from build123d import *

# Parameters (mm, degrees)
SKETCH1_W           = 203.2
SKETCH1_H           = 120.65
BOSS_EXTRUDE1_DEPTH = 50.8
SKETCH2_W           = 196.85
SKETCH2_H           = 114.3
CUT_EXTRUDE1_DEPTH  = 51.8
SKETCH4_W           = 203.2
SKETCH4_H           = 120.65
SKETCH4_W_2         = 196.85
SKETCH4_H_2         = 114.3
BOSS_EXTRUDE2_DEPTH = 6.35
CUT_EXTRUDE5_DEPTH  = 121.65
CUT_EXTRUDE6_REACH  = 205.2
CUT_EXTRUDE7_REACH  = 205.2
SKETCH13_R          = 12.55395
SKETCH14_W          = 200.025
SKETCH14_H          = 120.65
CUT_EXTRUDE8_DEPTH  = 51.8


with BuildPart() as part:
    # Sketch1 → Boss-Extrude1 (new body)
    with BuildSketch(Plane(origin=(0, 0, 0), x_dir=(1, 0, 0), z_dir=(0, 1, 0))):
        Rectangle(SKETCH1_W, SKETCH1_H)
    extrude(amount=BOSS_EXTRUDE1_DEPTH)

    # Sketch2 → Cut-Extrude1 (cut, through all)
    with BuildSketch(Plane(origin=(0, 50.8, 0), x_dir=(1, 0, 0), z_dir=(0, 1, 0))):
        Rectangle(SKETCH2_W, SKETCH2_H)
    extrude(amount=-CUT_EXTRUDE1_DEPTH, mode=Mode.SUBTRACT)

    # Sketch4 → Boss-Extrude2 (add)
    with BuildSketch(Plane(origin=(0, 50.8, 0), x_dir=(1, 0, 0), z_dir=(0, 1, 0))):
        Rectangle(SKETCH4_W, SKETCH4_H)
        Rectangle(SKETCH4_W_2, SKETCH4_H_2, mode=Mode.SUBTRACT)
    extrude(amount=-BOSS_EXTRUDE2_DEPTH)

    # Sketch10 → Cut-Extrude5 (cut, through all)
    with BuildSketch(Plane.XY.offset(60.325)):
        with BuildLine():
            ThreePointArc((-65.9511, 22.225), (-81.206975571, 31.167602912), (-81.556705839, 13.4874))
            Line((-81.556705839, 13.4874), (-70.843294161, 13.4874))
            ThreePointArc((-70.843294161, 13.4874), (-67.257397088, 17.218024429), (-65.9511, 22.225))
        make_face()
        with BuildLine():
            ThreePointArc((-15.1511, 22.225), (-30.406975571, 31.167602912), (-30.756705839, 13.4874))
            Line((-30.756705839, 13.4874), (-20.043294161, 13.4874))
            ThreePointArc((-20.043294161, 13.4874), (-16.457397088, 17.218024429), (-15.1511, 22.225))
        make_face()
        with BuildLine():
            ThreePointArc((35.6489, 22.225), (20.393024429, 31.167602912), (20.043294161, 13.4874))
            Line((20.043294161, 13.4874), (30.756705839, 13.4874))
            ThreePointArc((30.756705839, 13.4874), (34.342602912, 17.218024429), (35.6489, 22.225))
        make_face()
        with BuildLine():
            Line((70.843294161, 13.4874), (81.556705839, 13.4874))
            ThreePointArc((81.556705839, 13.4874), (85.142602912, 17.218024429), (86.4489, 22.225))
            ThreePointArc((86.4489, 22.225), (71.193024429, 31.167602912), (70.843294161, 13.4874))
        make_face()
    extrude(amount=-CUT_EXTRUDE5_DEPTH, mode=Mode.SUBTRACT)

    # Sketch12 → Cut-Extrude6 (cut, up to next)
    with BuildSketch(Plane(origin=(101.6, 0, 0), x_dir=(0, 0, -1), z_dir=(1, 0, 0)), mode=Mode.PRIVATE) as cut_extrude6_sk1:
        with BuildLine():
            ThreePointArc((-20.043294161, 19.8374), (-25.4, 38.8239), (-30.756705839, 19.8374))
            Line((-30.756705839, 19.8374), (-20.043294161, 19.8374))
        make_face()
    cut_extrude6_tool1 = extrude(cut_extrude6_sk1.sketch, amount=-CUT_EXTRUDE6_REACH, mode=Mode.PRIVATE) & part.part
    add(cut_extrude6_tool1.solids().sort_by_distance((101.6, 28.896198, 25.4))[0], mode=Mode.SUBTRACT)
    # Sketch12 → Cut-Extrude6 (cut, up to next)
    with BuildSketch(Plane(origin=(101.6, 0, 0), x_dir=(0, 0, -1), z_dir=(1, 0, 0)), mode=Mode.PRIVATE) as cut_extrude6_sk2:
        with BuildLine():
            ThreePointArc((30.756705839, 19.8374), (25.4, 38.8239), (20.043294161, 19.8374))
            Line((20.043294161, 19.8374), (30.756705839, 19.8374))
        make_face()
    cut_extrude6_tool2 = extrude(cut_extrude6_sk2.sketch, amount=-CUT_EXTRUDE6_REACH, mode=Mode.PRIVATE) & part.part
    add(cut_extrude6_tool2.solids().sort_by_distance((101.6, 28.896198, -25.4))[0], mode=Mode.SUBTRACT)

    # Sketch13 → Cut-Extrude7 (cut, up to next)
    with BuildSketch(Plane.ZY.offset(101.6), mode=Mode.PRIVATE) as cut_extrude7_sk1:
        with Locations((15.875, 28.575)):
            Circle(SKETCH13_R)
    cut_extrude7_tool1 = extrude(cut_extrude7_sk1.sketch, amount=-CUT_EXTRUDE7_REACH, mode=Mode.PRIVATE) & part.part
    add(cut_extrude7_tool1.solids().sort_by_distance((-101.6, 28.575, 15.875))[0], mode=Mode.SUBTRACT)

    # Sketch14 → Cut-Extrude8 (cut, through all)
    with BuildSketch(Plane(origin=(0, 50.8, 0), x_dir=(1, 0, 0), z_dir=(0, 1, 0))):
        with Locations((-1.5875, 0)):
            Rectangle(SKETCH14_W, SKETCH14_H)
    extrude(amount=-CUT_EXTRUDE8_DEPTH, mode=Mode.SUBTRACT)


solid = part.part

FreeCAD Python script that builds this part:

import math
import FreeCAD as App
import Part
import Sketcher
from FreeCAD import Vector
Q = App.Units.Quantity


def add_polygon(sketch, points):
    """Adds a closed chain of lines whose ends are joined by coincident constraints."""
    first, n = sketch.GeometryCount, len(points)
    for a, b in zip(points, points[1:] + points[:1]):
        sketch.addGeometry(Part.LineSegment(App.Vector(*a, 0), App.Vector(*b, 0)), False)
    for i in range(n):
        sketch.addConstraint(Sketcher.Constraint("Coincident", first + i, 2, first + (i + 1) % n, 1))

doc = App.newDocument("Part")
body = doc.addObject("PartDesign::Body", "Body")

sketch1 = body.newObject("Sketcher::SketchObject", "Sketch")
sketch1.AttachmentSupport = (doc.getObject("XZ_Plane"), [""])
sketch1.MapMode = "FlatFace"
add_polygon(sketch1, [(-101.6, -60.325), (-101.6, 60.325), (101.6, 60.325), (101.6, -60.325)])
sketch1.addConstraint([
    Sketcher.Constraint("Vertical", 0),
    Sketcher.Constraint("Horizontal", 1),
    Sketcher.Constraint("Vertical", 2),
    Sketcher.Constraint("Horizontal", 3),
    Sketcher.Constraint("Symmetric", 0, 2, 2, 2, -1, 1),
    Sketcher.Constraint("DistanceX", 1, 1, 1, 2, Q("8 in")),
    Sketcher.Constraint("DistanceY", 0, 1, 0, 2, Q("4.75 in")),
])
pad1 = body.newObject("PartDesign::Pad", "Pad")
pad1.Profile = sketch1
pad1.Length = Q("2 in")
pad1.Reversed = True

sketch2 = body.newObject("Sketcher::SketchObject", "Sketch001")
sketch2.AttachmentSupport = (doc.getObject("XZ_Plane"), [""])
sketch2.MapMode = "FlatFace"
sketch2.AttachmentOffset = App.Placement(Vector(0, 0, -2 * 25.4), App.Rotation())
add_polygon(sketch2, [(-98.425, -57.15), (-98.425, 57.15), (98.425, 57.15), (98.425, -57.15)])
sketch2.addConstraint([
    Sketcher.Constraint("Vertical", 0),
    Sketcher.Constraint("Horizontal", 1),
    Sketcher.Constraint("Vertical", 2),
    Sketcher.Constraint("Horizontal", 3),
    Sketcher.Constraint("Symmetric", 0, 2, 2, 2, -1, 1),
    Sketcher.Constraint("DistanceY", 0, 1, 0, 2, Q("4.5 in")),
    Sketcher.Constraint("DistanceX", 1, 1, 1, 2, Q("7.75 in")),
])
pocket1 = body.newObject("PartDesign::Pocket", "Pocket")
pocket1.Profile = sketch2
pocket1.Type = "ThroughAll"
pocket1.Reversed = True

sketch3 = body.newObject("Sketcher::SketchObject", "Sketch002")
sketch3.AttachmentSupport = (doc.getObject("XZ_Plane"), [""])
sketch3.MapMode = "FlatFace"
sketch3.AttachmentOffset = App.Placement(Vector(0, 0, -2 * 25.4), App.Rotation())
add_polygon(sketch3, [(-101.6, -60.325), (-101.6, 60.325), (101.6, 60.325), (101.6, -60.325)])
add_polygon(sketch3, [(98.425, 57.15), (-98.425, 57.15), (-98.425, -57.15), (98.425, -57.15)])
sketch3.addConstraint([
    Sketcher.Constraint("Vertical", 0),
    Sketcher.Constraint("Horizontal", 1),
    Sketcher.Constraint("Vertical", 2),
    Sketcher.Constraint("Horizontal", 3),
    Sketcher.Constraint("Horizontal", 4),
    Sketcher.Constraint("Vertical", 5),
    Sketcher.Constraint("Horizontal", 6),
    Sketcher.Constraint("Vertical", 7),
    Sketcher.Constraint("Symmetric", 0, 2, 2, 2, -1, 1),
    Sketcher.Constraint("Symmetric", 4, 2, 6, 2, -1, 1),
    Sketcher.Constraint("DistanceX", 1, 1, 1, 2, Q("8 in")),
    Sketcher.Constraint("DistanceY", 5, 2, 5, 1, Q("4.5 in")),
    Sketcher.Constraint("DistanceX", 4, 2, 4, 1, Q("7.75 in")),
    Sketcher.Constraint("DistanceY", 0, 1, 0, 2, Q("4.75 in")),
])
pad2 = body.newObject("PartDesign::Pad", "Pad001")
pad2.Profile = sketch3
pad2.Length = Q("0.25 in")

sketch4 = body.newObject("Sketcher::SketchObject", "Sketch003")
sketch4.AttachmentSupport = (doc.getObject("XY_Plane"), [""])
sketch4.MapMode = "FlatFace"
sketch4.AttachmentOffset = App.Placement(Vector(0, 0, 2.375 * 25.4), App.Rotation())
sketch4.addGeometry([
    Part.ArcOfCircle(Part.Circle(Vector(-76.2, 22.225, 0), Vector(0, 0, 1), 10.2489), math.radians(0), math.radians(238.489048)),
    Part.LineSegment(Vector(-81.556706, 13.4874, 0), Vector(-70.843294, 13.4874, 0)),
    Part.ArcOfCircle(Part.Circle(Vector(-76.2, 22.225, 0), Vector(0, 0, 1), 10.2489), math.radians(-58.489048), math.radians(0)),
    Part.ArcOfCircle(Part.Circle(Vector(-25.4, 22.225, 0), Vector(0, 0, 1), 10.2489), math.radians(0), math.radians(238.489048)),
    Part.LineSegment(Vector(-30.756706, 13.4874, 0), Vector(-20.043294, 13.4874, 0)),
    Part.ArcOfCircle(Part.Circle(Vector(-25.4, 22.225, 0), Vector(0, 0, 1), 10.2489), math.radians(-58.489048), math.radians(0)),
    Part.ArcOfCircle(Part.Circle(Vector(25.4, 22.225, 0), Vector(0, 0, 1), 10.2489), math.radians(0), math.radians(238.489048)),
    Part.LineSegment(Vector(20.043294, 13.4874, 0), Vector(30.756706, 13.4874, 0)),
    Part.ArcOfCircle(Part.Circle(Vector(25.4, 22.225, 0), Vector(0, 0, 1), 10.2489), math.radians(-58.489048), math.radians(0)),
    Part.LineSegment(Vector(70.843294, 13.4874, 0), Vector(81.556706, 13.4874, 0)),
    Part.ArcOfCircle(Part.Circle(Vector(76.2, 22.225, 0), Vector(0, 0, 1), 10.2489), math.radians(-58.489048), math.radians(0)),
    Part.ArcOfCircle(Part.Circle(Vector(76.2, 22.225, 0), Vector(0, 0, 1), 10.2489), math.radians(0), math.radians(238.489048)),
], False)
sketch4.addConstraint([
    Sketcher.Constraint("Coincident", 0, 2, 1, 1),
    Sketcher.Constraint("Coincident", 1, 2, 2, 1),
    Sketcher.Constraint("Tangent", 2, 2, 0, 1),
    Sketcher.Constraint("Coincident", 3, 2, 4, 1),
    Sketcher.Constraint("Coincident", 4, 2, 5, 1),
    Sketcher.Constraint("Tangent", 5, 2, 3, 1),
    Sketcher.Constraint("Coincident", 6, 2, 7, 1),
    Sketcher.Constraint("Coincident", 7, 2, 8, 1),
    Sketcher.Constraint("Tangent", 8, 2, 6, 1),
    Sketcher.Constraint("Coincident", 9, 2, 10, 1),
    Sketcher.Constraint("Tangent", 10, 2, 11, 1),
    Sketcher.Constraint("Coincident", 11, 2, 9, 1),
    Sketcher.Constraint("Horizontal", 1),
    Sketcher.Constraint("Horizontal", 4),
    Sketcher.Constraint("Horizontal", 7),
    Sketcher.Constraint("Horizontal", 9),
    Sketcher.Constraint("Equal", 0, 2),
    Sketcher.Constraint("Equal", 2, 3),
    Sketcher.Constraint("Equal", 3, 5),
    Sketcher.Constraint("Equal", 5, 6),
    Sketcher.Constraint("Equal", 6, 8),
    Sketcher.Constraint("Equal", 8, 10),
    Sketcher.Constraint("Equal", 10, 11),
    Sketcher.Constraint("Symmetric", 3, 3, 6, 3, -2),
    Sketcher.Constraint("Symmetric", 0, 3, 10, 3, -2),
    Sketcher.Constraint("Horizontal", 2, 3, 3, 3),
    Sketcher.Constraint("Horizontal", 11, 3, 2, 2),
    Sketcher.Constraint("Horizontal", 1, 2, 3, 2),
    Sketcher.Constraint("Horizontal", 2, 2, 5, 2),
    Sketcher.Constraint("Horizontal", 4, 2, 6, 2),
    Sketcher.Constraint("Horizontal", 5, 2, 8, 2),
    Sketcher.Constraint("Horizontal", 7, 2, 9, 2),
    Sketcher.Constraint("Horizontal", 8, 2, 10, 2),
    Sketcher.Constraint("DistanceX", 0, 3, -1, 1, Q("3 in")),
    Sketcher.Constraint("DistanceX", 3, 3, -1, 1, Q("1 in")),
    Sketcher.Constraint("Radius", 0, Q("0.4035 in")),
    Sketcher.Constraint("DistanceY", -1, 1, 0, 3, Q("0.875 in")),
    Sketcher.Constraint("DistanceY", -1, 1, 0, 2, Q("0.531 in")),
])
pocket2 = body.newObject("PartDesign::Pocket", "Pocket001")
pocket2.Profile = sketch4
pocket2.Type = "ThroughAll"

sketch5 = body.newObject("Sketcher::SketchObject", "Sketch004")
sketch5.AttachmentSupport = (doc.getObject("YZ_Plane"), [""])
sketch5.MapMode = "FlatFace"
sketch5.AttachmentOffset = App.Placement(Vector(0, 0, 4 * 25.4), App.Rotation())
sketch5.addGeometry([
    Part.ArcOfCircle(Part.Circle(Vector(28.575, 25.4, 0), Vector(0, 0, 1), 10.2489), math.radians(-148.489048), math.radians(148.489048)),
    Part.LineSegment(Vector(19.8374, 30.756706, 0), Vector(19.8374, 20.043294, 0)),
], False)
sketch5.addConstraint([
    Sketcher.Constraint("Coincident", 0, 1, 1, 2),
    Sketcher.Constraint("Coincident", 1, 1, 0, 2),
    Sketcher.Constraint("Vertical", 1),
    Sketcher.Constraint("DistanceY", -1, 1, 0, 3, Q("1 in")),
    Sketcher.Constraint("Radius", 0, Q("0.4035 in")),
    Sketcher.Constraint("DistanceX", -1, 1, 0, 3, Q("1.125 in")),
    Sketcher.Constraint("DistanceX", -1, 1, 0, 1, Q("0.781 in")),
])
pocket3 = body.newObject("PartDesign::Pocket", "Pocket002")
pocket3.Profile = sketch5
pocket3.Type = "UpToFirst"

sketch6 = body.newObject("Sketcher::SketchObject", "Sketch005")
sketch6.AttachmentSupport = (doc.getObject("YZ_Plane"), [""])
sketch6.MapMode = "FlatFace"
sketch6.AttachmentOffset = App.Placement(Vector(0, 0, 4 * 25.4), App.Rotation())
sketch6.addGeometry([
    Part.ArcOfCircle(Part.Circle(Vector(28.575, -25.4, 0), Vector(0, 0, 1), 10.2489), math.radians(-148.489048), math.radians(148.489048)),
    Part.LineSegment(Vector(19.8374, -20.043294, 0), Vector(19.8374, -30.756706, 0)),
], False)
sketch6.addConstraint([
    Sketcher.Constraint("Coincident", 0, 1, 1, 2),
    Sketcher.Constraint("Coincident", 1, 1, 0, 2),
    Sketcher.Constraint("Vertical", 1),
    Sketcher.Constraint("DistanceY", 0, 3, -1, 1, Q("1 in")),
    Sketcher.Constraint("Radius", 0, Q("0.4035 in")),
    Sketcher.Constraint("DistanceX", -1, 1, 0, 3, Q("1.125 in")),
    Sketcher.Constraint("DistanceX", -1, 1, 0, 1, Q("0.781 in")),
])
pocket4 = body.newObject("PartDesign::Pocket", "Pocket003")
pocket4.Profile = sketch6
pocket4.Type = "UpToFirst"

sketch7 = body.newObject("Sketcher::SketchObject", "Sketch006")
sketch7.AttachmentSupport = (doc.getObject("YZ_Plane"), [""])
sketch7.MapMode = "FlatFace"
sketch7.AttachmentOffset = App.Placement(Vector(0, 0, -4 * 25.4), App.Rotation())
sketch7.addGeometry(Part.Circle(Vector(28.575, 15.875, 0), Vector(0, 0, 1), 12.55395), False)
sketch7.addConstraint([
    Sketcher.Constraint("Diameter", 0, Q("0.9885 in")),
    Sketcher.Constraint("DistanceX", -1, 1, 0, 3, Q("1.125 in")),
    Sketcher.Constraint("DistanceY", -1, 1, 0, 3, Q("0.625 in")),
])
pocket5 = body.newObject("PartDesign::Pocket", "Pocket004")
pocket5.Profile = sketch7
pocket5.Type = "UpToFirst"
pocket5.Reversed = True

sketch8 = body.newObject("Sketcher::SketchObject", "Sketch007")
sketch8.AttachmentSupport = (doc.getObject("XZ_Plane"), [""])
sketch8.MapMode = "FlatFace"
sketch8.AttachmentOffset = App.Placement(Vector(0, 0, -2 * 25.4), App.Rotation())
add_polygon(sketch8, [(-101.6, -60.325), (-101.6, 60.325), (98.425, 60.325), (98.425, -60.325)])
sketch8.addConstraint([
    Sketcher.Constraint("Vertical", 0),
    Sketcher.Constraint("Horizontal", 1),
    Sketcher.Constraint("Vertical", 2),
    Sketcher.Constraint("Horizontal", 3),
    Sketcher.Constraint("DistanceX", 0, 2, -1, 1, Q("4 in")),
    Sketcher.Constraint("DistanceY", 0, 1, 0, 2, Q("4.75 in")),
    Sketcher.Constraint("DistanceX", 1, 1, 1, 2, Q("7.875 in")),
    Sketcher.Constraint("DistanceY", -1, 1, 0, 2, Q("2.375 in")),
])
pocket6 = body.newObject("PartDesign::Pocket", "Pocket005")
pocket6.Profile = sketch8
pocket6.Type = "ThroughAll"
pocket6.Reversed = True

doc.recompute()
